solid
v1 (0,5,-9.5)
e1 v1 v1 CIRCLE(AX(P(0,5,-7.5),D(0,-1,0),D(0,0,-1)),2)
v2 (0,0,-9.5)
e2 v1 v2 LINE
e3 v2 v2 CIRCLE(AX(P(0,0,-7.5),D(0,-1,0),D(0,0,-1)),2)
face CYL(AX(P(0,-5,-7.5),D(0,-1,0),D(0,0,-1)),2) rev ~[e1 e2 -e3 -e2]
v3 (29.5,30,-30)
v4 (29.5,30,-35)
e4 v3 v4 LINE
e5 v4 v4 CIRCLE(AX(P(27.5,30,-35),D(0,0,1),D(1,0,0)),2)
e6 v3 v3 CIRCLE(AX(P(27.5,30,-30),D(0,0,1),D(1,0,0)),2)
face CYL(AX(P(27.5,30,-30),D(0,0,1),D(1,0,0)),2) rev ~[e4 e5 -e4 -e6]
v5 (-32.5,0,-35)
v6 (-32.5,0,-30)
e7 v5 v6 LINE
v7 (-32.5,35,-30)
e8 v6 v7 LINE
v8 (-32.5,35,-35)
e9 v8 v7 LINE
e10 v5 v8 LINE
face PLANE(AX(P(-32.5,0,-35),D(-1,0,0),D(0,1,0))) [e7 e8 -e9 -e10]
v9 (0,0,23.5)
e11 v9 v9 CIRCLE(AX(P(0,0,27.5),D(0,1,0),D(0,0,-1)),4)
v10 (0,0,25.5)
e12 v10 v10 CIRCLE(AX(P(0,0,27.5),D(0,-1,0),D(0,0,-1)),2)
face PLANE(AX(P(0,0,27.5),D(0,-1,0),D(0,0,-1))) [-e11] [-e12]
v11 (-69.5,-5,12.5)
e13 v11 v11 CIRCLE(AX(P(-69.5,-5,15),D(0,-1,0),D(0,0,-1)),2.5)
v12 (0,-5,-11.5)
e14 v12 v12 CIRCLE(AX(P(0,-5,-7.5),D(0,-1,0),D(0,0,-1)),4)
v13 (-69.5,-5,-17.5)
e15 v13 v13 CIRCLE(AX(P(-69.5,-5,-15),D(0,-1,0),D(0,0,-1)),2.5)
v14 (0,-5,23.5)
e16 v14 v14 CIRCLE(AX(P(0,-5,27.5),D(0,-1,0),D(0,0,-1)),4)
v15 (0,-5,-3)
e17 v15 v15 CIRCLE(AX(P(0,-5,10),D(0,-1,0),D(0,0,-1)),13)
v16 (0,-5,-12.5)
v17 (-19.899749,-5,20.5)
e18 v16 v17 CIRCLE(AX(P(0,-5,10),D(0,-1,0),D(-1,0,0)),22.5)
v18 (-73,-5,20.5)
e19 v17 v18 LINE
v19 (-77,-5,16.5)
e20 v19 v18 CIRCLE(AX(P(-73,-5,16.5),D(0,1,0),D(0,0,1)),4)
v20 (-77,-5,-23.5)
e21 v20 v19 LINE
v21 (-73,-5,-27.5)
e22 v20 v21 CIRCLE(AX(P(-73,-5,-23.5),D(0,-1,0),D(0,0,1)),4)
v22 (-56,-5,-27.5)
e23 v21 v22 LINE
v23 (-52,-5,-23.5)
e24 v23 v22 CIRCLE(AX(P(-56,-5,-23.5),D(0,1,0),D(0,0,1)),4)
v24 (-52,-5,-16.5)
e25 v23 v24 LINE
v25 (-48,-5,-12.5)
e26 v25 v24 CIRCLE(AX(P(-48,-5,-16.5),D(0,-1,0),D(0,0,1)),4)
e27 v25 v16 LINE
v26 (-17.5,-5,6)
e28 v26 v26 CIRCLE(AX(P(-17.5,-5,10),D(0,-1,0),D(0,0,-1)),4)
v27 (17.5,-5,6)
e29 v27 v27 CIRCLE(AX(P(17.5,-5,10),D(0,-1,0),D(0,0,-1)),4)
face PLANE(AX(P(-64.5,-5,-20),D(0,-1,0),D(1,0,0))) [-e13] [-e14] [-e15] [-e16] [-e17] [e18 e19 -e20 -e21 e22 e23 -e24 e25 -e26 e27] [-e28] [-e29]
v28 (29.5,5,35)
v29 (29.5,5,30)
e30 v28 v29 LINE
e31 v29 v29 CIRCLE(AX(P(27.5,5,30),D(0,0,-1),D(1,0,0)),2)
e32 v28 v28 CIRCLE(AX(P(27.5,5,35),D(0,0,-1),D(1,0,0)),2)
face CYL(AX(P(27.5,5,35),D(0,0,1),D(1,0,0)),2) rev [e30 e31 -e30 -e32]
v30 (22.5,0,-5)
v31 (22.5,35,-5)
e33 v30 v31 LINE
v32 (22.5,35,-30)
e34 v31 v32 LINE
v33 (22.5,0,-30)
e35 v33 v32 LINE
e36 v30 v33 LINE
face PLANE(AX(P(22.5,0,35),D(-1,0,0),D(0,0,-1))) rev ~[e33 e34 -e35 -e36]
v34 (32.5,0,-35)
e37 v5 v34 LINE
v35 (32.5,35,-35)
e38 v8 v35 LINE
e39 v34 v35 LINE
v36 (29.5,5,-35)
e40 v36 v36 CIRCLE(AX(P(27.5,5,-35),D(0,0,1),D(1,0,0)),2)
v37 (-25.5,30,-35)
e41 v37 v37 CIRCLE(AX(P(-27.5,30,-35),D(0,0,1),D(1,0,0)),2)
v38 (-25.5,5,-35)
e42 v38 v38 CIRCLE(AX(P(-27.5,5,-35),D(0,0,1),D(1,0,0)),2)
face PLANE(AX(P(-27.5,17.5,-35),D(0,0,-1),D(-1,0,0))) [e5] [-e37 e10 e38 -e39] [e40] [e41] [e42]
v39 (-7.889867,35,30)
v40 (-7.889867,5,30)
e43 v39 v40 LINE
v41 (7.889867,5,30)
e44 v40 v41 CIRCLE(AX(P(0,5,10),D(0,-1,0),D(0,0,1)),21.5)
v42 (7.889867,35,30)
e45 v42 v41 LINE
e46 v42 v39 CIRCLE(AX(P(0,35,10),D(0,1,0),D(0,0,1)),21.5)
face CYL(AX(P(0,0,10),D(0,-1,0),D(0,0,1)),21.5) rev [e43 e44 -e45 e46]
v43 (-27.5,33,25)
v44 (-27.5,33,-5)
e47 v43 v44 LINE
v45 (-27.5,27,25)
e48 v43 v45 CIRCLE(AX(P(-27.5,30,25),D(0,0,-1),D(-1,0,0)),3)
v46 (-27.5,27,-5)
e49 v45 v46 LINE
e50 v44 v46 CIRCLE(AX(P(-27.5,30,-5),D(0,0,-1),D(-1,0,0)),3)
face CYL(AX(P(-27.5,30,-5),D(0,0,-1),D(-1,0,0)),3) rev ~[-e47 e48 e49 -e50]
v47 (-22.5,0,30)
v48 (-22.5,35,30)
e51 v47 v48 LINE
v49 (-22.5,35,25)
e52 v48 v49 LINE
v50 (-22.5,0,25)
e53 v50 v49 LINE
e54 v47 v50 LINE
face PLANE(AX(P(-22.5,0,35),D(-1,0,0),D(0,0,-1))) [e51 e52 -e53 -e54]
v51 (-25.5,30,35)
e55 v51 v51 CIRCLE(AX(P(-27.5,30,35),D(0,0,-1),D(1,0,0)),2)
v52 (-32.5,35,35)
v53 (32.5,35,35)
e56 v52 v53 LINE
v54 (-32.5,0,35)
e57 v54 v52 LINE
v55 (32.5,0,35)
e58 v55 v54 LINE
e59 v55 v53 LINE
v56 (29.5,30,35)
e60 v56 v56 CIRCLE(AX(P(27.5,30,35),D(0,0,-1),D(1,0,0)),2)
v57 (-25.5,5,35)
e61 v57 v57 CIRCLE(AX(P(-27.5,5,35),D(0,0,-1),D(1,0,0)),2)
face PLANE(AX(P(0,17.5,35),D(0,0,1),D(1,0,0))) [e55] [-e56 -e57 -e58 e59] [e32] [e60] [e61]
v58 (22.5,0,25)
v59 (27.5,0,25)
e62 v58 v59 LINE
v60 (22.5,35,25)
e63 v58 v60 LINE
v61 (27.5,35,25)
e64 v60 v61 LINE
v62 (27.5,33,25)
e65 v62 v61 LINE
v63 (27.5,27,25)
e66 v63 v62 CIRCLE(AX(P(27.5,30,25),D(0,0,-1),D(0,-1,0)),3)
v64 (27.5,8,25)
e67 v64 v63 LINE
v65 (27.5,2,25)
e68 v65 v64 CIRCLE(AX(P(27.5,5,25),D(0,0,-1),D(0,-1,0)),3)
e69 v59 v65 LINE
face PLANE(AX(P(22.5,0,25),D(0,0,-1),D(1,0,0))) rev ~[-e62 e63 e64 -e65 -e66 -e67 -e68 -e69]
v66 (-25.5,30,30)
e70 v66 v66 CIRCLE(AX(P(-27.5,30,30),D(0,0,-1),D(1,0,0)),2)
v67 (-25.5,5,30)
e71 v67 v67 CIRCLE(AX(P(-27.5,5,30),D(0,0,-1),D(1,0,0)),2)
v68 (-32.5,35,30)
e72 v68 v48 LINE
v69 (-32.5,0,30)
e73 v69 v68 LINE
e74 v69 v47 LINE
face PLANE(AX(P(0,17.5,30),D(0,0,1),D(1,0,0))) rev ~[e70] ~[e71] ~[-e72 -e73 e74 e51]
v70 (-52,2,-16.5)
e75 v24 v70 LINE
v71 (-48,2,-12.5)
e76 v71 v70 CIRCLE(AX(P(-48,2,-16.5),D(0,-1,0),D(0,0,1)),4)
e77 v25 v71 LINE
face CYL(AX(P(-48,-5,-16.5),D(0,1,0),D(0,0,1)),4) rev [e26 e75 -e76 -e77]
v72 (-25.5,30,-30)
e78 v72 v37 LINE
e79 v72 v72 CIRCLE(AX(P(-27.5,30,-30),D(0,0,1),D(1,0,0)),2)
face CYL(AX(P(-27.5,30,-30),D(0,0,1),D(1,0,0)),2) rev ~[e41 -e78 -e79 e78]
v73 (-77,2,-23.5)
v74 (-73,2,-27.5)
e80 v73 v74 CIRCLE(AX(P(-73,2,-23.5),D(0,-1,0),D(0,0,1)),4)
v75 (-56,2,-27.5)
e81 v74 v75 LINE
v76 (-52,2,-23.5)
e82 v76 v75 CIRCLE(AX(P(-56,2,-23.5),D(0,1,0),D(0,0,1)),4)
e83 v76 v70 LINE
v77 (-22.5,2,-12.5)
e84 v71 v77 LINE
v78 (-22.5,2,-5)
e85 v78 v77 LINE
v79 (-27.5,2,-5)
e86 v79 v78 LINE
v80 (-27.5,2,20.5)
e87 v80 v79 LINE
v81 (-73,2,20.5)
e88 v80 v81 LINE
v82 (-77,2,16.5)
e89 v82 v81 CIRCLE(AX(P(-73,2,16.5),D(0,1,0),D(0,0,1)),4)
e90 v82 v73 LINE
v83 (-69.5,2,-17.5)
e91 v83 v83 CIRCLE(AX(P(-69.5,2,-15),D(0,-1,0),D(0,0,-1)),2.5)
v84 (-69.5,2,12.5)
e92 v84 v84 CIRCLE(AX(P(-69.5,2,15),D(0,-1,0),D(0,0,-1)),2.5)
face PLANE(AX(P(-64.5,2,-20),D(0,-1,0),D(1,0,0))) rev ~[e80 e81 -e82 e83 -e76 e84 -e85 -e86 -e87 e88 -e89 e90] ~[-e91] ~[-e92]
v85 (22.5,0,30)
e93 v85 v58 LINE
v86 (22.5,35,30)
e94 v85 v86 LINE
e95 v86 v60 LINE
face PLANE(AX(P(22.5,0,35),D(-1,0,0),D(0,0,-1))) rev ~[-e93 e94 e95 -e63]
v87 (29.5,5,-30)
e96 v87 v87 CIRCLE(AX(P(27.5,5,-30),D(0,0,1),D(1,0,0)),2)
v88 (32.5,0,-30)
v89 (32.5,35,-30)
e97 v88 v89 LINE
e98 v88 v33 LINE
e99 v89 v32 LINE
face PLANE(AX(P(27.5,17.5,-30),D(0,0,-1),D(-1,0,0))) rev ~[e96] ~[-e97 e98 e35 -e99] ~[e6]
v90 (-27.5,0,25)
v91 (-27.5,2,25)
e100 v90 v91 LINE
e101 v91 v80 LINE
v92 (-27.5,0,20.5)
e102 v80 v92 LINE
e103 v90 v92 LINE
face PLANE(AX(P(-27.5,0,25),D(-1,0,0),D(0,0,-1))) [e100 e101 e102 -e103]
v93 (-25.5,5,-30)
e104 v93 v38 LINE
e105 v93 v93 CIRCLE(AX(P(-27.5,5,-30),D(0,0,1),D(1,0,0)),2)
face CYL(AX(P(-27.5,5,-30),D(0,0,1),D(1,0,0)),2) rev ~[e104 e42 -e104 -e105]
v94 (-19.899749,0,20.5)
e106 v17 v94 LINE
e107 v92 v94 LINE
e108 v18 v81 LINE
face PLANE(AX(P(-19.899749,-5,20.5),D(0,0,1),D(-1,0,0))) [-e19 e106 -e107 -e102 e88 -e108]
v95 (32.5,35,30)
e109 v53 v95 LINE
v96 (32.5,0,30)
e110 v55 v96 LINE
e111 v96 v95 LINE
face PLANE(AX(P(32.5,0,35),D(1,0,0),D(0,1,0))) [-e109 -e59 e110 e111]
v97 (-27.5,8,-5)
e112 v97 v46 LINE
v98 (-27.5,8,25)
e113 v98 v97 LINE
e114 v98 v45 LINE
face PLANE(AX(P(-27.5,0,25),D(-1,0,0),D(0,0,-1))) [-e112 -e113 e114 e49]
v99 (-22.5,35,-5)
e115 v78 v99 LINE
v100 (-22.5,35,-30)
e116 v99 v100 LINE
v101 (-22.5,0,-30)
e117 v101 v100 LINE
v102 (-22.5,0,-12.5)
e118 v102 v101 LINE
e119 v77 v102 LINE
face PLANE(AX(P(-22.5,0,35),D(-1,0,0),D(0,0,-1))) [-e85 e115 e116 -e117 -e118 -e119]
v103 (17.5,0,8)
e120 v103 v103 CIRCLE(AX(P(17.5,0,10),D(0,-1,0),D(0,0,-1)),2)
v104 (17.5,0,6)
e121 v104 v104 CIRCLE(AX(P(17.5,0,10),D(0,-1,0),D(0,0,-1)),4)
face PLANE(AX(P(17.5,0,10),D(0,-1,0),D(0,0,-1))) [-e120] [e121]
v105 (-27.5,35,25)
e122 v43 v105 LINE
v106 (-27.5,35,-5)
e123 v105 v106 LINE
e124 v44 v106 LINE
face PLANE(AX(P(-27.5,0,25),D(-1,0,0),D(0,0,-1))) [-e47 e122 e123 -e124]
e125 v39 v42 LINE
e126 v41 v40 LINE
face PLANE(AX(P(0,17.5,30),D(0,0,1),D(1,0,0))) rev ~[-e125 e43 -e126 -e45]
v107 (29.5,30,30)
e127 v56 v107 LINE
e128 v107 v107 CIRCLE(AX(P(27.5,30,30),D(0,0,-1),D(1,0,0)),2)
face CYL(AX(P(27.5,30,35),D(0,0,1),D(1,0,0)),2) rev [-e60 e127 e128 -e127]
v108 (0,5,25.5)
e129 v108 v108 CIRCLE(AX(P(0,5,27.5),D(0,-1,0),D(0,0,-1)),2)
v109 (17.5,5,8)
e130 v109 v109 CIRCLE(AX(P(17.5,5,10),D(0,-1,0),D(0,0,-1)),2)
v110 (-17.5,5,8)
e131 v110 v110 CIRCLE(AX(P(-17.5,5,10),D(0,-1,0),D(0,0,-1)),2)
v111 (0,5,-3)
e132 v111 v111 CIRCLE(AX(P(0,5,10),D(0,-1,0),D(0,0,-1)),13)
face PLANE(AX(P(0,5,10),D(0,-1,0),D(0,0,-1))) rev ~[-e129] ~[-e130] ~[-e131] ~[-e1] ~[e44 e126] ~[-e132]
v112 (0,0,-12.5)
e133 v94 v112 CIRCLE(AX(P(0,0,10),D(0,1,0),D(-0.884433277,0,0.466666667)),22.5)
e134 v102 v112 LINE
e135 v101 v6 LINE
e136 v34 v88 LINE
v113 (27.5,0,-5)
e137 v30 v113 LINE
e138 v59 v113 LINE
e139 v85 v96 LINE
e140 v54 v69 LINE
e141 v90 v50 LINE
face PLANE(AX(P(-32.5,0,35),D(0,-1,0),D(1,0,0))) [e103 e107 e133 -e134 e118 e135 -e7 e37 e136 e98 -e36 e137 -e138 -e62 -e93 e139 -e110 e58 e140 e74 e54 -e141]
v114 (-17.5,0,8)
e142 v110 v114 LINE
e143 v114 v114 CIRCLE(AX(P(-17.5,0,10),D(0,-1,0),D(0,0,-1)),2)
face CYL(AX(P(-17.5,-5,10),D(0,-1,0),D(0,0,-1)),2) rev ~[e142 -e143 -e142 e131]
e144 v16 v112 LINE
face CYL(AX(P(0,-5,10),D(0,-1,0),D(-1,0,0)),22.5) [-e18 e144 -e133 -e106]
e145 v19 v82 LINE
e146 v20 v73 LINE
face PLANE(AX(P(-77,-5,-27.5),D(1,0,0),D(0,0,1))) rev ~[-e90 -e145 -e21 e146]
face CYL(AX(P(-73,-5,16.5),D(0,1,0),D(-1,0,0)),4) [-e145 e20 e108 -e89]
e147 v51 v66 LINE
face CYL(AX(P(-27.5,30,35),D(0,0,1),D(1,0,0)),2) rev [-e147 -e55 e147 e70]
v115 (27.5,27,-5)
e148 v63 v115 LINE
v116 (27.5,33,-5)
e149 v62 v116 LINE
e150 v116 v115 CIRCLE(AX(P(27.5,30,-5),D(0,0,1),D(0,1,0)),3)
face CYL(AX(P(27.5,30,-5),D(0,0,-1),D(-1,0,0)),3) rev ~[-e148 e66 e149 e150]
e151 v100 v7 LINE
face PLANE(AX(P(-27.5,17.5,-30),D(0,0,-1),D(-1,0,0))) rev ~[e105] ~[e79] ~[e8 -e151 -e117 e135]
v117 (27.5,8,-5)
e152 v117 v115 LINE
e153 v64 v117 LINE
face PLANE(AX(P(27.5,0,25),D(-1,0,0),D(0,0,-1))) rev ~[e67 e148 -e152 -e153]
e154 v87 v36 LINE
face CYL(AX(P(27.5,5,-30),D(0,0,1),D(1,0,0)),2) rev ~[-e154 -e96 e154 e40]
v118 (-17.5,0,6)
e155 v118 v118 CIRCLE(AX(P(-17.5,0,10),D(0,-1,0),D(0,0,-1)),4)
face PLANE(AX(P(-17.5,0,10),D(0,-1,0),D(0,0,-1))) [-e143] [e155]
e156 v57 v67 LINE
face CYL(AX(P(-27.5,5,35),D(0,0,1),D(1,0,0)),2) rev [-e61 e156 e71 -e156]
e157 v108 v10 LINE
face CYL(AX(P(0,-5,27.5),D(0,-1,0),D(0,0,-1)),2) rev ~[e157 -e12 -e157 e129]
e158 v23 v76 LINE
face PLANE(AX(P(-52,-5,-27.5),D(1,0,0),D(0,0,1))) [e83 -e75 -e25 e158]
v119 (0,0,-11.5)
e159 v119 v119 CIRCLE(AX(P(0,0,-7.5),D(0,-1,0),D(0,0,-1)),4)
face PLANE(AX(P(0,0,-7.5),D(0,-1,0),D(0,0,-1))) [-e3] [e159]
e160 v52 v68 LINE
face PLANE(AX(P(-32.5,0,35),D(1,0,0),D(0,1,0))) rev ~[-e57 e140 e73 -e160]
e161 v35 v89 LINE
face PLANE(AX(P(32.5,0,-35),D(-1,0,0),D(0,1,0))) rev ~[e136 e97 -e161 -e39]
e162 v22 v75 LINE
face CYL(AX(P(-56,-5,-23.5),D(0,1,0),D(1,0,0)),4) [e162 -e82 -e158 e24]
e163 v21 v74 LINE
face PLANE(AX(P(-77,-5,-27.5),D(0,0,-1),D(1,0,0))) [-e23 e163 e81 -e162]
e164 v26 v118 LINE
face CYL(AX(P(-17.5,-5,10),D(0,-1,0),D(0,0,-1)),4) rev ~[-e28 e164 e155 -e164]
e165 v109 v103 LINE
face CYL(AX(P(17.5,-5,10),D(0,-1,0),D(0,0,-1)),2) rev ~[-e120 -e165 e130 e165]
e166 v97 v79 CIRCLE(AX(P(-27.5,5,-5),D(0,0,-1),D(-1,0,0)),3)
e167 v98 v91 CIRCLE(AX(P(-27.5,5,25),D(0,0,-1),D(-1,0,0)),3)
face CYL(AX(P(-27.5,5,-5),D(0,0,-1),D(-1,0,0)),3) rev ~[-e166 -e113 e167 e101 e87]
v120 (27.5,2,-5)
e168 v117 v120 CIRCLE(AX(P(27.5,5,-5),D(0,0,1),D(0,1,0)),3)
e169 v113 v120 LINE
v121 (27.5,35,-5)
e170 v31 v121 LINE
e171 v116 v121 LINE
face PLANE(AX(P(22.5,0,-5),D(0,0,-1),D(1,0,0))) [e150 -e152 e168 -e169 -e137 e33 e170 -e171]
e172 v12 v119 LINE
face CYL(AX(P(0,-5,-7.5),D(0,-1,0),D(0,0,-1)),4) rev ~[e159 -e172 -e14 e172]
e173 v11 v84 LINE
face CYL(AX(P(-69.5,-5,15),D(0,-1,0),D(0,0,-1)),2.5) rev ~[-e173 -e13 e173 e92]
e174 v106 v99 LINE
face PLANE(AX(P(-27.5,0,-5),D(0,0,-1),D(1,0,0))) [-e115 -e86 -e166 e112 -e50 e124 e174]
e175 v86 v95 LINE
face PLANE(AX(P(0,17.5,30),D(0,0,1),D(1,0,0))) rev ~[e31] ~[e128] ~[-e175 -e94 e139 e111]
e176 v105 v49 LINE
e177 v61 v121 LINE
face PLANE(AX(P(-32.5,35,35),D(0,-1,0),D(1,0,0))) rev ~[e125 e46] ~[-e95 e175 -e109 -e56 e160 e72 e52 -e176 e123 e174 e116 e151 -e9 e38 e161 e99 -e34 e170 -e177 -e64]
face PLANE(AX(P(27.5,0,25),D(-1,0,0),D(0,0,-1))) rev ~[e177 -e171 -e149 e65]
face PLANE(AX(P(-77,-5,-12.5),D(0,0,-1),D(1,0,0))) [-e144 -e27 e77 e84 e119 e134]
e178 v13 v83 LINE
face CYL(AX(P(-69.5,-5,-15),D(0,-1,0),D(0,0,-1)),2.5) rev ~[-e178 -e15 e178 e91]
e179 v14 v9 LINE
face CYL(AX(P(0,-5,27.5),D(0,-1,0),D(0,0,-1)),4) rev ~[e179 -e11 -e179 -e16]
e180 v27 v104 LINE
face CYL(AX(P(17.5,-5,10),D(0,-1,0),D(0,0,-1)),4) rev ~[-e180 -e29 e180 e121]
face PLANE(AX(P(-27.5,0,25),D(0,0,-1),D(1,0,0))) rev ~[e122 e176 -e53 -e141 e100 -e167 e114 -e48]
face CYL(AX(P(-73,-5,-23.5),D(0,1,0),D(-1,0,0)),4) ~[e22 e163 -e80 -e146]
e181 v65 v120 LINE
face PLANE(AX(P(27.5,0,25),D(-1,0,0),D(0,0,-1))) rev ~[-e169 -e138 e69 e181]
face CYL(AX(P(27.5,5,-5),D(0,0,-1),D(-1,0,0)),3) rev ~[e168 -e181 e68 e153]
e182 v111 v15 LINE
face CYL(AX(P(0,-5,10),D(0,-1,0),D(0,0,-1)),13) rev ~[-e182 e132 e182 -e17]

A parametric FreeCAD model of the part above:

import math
import FreeCAD as App
import Part
import Sketcher
from FreeCAD import Vector


def edges_at(feature, points):
    """Names of the edges that pass closest to the given points."""
    edges = feature.Shape.Edges
    near = lambda p: min(range(len(edges)), key=lambda i: edges[i].distToShape(Part.Vertex(*p))[0])
    return sorted({f"Edge{near(p) + 1}" for p in points})


def add_polygon(sketch, points):
    """Adds a closed chain of lines whose ends are joined by coincident constraints."""
    first, n = sketch.GeometryCount, len(points)
    for a, b in zip(points, points[1:] + points[:1]):
        sketch.addGeometry(Part.LineSegment(App.Vector(*a, 0), App.Vector(*b, 0)), False)
    for i in range(n):
        sketch.addConstraint(Sketcher.Constraint("Coincident", first + i, 2, first + (i + 1) % n, 1))

doc = App.newDocument("Part")
params = doc.addObject("Spreadsheet::Sheet", "Params")
for row, (alias, value) in enumerate([
    ("sketch1_diameter", "43 mm"),
    ("sketch1_width", "45 mm"),
    ("sketch1_height", "70 mm"),
    ("pad1_length", "35 mm"),
    ("sketch2_diameter", "43 mm"),
    ("pad2_length", "5 mm"),
    ("sketch3_diameter", "4 mm"),
    ("sketch3_diameter2", "26 mm"),
    ("pocket1_length", "10 mm"),
    ("sketch4_width", "10 mm"),
    ("sketch4_height", "35 mm"),
    ("pad3_length", "5 mm"),
    ("sketch5_diameter", "4 mm"),
    ("pocket2_length", "5 mm"),
    ("sketch6_diameter", "45 mm"),
    ("sketch6_diameter2", "4 mm"),
    ("sketch6_diameter3", "26 mm"),
    ("pad4_length", "5 mm"),
    ("sketch7_diameter", "8 mm"),
    ("pocket3_length", "5 mm"),
    ("sketch8_radius", "22.5 mm"),
    ("sketch8_width", "77 mm"),
    ("sketch8_height", "33 mm"),
    ("pad5_length", "7 mm"),
    ("sketch9_width", "25 mm"),
    ("sketch9_height", "15 mm"),
    ("pad6_length", "7 mm"),
    ("fillet_radius", "4 mm"),
    ("sketch10_diameter", "5 mm"),
    ("pocket4_length", "10 mm"),
    ("sketch11_width", "5 mm"),
    ("sketch11_height", "30 mm"),
    ("pad7_length", "35 mm"),
    ("sketch12_width", "65 mm"),
    ("sketch12_height", "35 mm"),
    ("pad8_length", "5 mm"),
    ("sketch13_diameter", "4 mm"),
    ("pocket5_length", "5 mm"),
    ("sketch14_diameter", "6 mm"),
    ("pocket6_length", "31 mm"),
], start=1):
    params.set(f"A{row}", alias)
    params.set(f"B{row}", "=" + value)
    params.setAlias(f"B{row}", alias)

body = doc.addObject("PartDesign::Body", "Body")

# Sketch on XZ plane
sketch1 = body.newObject("Sketcher::SketchObject", "Sketch")
sketch1.AttachmentSupport = (doc.getObject("XZ_Plane"), [""])
sketch1.MapMode = "FlatFace"
add_polygon(sketch1, [(-22, -35), (-22, 35), (22, 35), (22, -35)])  # lines 0-3
sketch1.addGeometry(Part.Circle(Vector(0, 10, 0), Vector(0, 0, 1), 22), False)  # 4
sketch1.addConstraint(Sketcher.Constraint("Vertical", 0))
sketch1.addConstraint(Sketcher.Constraint("Horizontal", 1))
sketch1.addConstraint(Sketcher.Constraint("Vertical", 2))
sketch1.addConstraint(Sketcher.Constraint("Horizontal", 3))
sketch1.addConstraint(Sketcher.Constraint("Symmetric", 0, 2, 2, 2, -1, 1))
sketch1.addConstraint(Sketcher.Constraint("PointOnObject", 4, 3, -2))
sketch1.addConstraint(Sketcher.Constraint("Diameter", 4, 43.0))
sketch1.addConstraint(Sketcher.Constraint("DistanceX", 1, 1, 1, 2, 45.0))
sketch1.addConstraint(Sketcher.Constraint("DistanceY", 0, 1, 0, 2, 70.0))
sketch1.addConstraint(Sketcher.Constraint("DistanceY", -1, 1, 4, 3, 10.0))
sketch1.setExpression("Constraints[10]", "Params.sketch1_diameter")
sketch1.setExpression("Constraints[11]", "Params.sketch1_width")
sketch1.setExpression("Constraints[12]", "Params.sketch1_height")
pad1 = body.newObject("PartDesign::Pad", "Pad")
pad1.Profile = sketch1
pad1.setExpression("Length", "Params.pad1_length")
pad1.Reversed = True

# Sketch on XZ plane
sketch2 = body.newObject("Sketcher::SketchObject", "Sketch001")
sketch2.AttachmentSupport = (doc.getObject("XZ_Plane"), [""])
sketch2.MapMode = "FlatFace"
sketch2.addGeometry(Part.Circle(Vector(0, 10, 0), Vector(0, 0, 1), 22), False)
sketch2.addConstraint(Sketcher.Constraint("PointOnObject", 0, 3, -2))
sketch2.addConstraint(Sketcher.Constraint("Diameter", 0, 43.0))
sketch2.addConstraint(Sketcher.Constraint("DistanceY", -1, 1, 0, 3, 10.0))
sketch2.setExpression("Constraints[1]", "Params.sketch2_diameter")
pad2 = body.newObject("PartDesign::Pad", "Pad001")
pad2.Profile = sketch2
pad2.setExpression("Length", "Params.pad2_length")
pad2.Reversed = True

# Sketch on XZ plane
sketch3 = body.newObject("Sketcher::SketchObject", "Sketch002")
sketch3.AttachmentSupport = (doc.getObject("XZ_Plane"), [""])
sketch3.MapMode = "FlatFace"
sketch3.addGeometry(Part.Circle(Vector(0, -7.5, 0), Vector(0, 0, 1), 2), False)
sketch3.addGeometry(Part.Circle(Vector(-17.5, 10, 0), Vector(0, 0, 1), 2), False)
sketch3.addGeometry(Part.Circle(Vector(0, 27.5, 0), Vector(0, 0, 1), 2), False)
sketch3.addGeometry(Part.Circle(Vector(17.5, 10, 0), Vector(0, 0, 1), 2), False)
sketch3.addGeometry(Part.Circle(Vector(0, 10, 0), Vector(0, 0, 1), 13), False)
sketch3.addConstraint(Sketcher.Constraint("Equal", 0, 1))
sketch3.addConstraint(Sketcher.Constraint("Equal", 1, 2))
sketch3.addConstraint(Sketcher.Constraint("Equal", 2, 3))
sketch3.addConstraint(Sketcher.Constraint("Symmetric", 1, 3, 3, 3, -2))
sketch3.addConstraint(Sketcher.Constraint("PointOnObject", 0, 3, -2))
sketch3.addConstraint(Sketcher.Constraint("PointOnObject", 2, 3, -2))
sketch3.addConstraint(Sketcher.Constraint("PointOnObject", 4, 3, -2))
sketch3.addConstraint(Sketcher.Constraint("Horizontal", 3, 3, 4, 3))
sketch3.addConstraint(Sketcher.Constraint("Diameter", 0, 4.0))
sketch3.addConstraint(Sketcher.Constraint("Diameter", 4, 26.0))
sketch3.addConstraint(Sketcher.Constraint("DistanceY", -1, 1, 1, 3, 10.0))
sketch3.addConstraint(Sketcher.Constraint("DistanceY", 0, 3, 2, 3, 35.0))
sketch3.addConstraint(Sketcher.Constraint("DistanceX", 1, 3, 3, 3, 35.0))
sketch3.addConstraint(Sketcher.Constraint("DistanceY", 0, 3, -1, 1, 7.5))
sketch3.setExpression("Constraints[8]", "Params.sketch3_diameter")
sketch3.setExpression("Constraints[9]", "Params.sketch3_diameter2")
pocket1 = body.newObject("PartDesign::Pocket", "Pocket")
pocket1.Profile = sketch3
pocket1.setExpression("Length", "Params.pocket1_length")

# Sketch on XY plane
sketch4 = body.newObject("Sketcher::SketchObject", "Sketch003")
sketch4.AttachmentSupport = (doc.getObject("XY_Plane"), [""])
sketch4.MapMode = "FlatFace"
sketch4.AttachmentOffset = App.Placement(Vector(0, 0, -35), App.Rotation())
add_polygon(sketch4, [(-22, 35), (-22, 0), (-32, 0), (-32, 35)])  # lines 0-3
add_polygon(sketch4, [(32, 35), (32, 0), (22, 0), (22, 35)])  # lines 4-7
sketch4.addConstraint(Sketcher.Constraint("Vertical", 0))
sketch4.addConstraint(Sketcher.Constraint("Horizontal", 1))
sketch4.addConstraint(Sketcher.Constraint("Vertical", 2))
sketch4.addConstraint(Sketcher.Constraint("Horizontal", 3))
sketch4.addConstraint(Sketcher.Constraint("Vertical", 4))
sketch4.addConstraint(Sketcher.Constraint("Horizontal", 5))
sketch4.addConstraint(Sketcher.Constraint("Vertical", 6))
sketch4.addConstraint(Sketcher.Constraint("Horizontal", 7))
sketch4.addConstraint(Sketcher.Constraint("Symmetric", 1, 2, 4, 2, -1, 1))
sketch4.addConstraint(Sketcher.Constraint("Symmetric", 0, 2, 5, 2, -2))
sketch4.addConstraint(Sketcher.Constraint("Horizontal", 3, 2, 6, 2))
sketch4.addConstraint(Sketcher.Constraint("DistanceX", 1, 2, 1, 1, 10.0))
sketch4.addConstraint(Sketcher.Constraint("DistanceY", 0, 2, 0, 1, 35.0))
sketch4.addConstraint(Sketcher.Constraint("DistanceX", 0, 2, 4, 2, 55.0))
sketch4.setExpression("Constraints[19]", "Params.sketch4_width")
sketch4.setExpression("Constraints[20]", "Params.sketch4_height")
pad3 = body.newObject("PartDesign::Pad", "Pad002")
pad3.Profile = sketch4
pad3.setExpression("Length", "Params.pad3_length")

# Sketch on XY plane
sketch5 = body.newObject("Sketcher::SketchObject", "Sketch004")
sketch5.AttachmentSupport = (doc.getObject("XY_Plane"), [""])
sketch5.MapMode = "FlatFace"
sketch5.AttachmentOffset = App.Placement(Vector(0, 0, -30), App.Rotation())
sketch5.addGeometry(Part.Circle(Vector(27.5, 30, 0), Vector(0, 0, 1), 2), False)
sketch5.addGeometry(Part.Circle(Vector(27.5, 5, 0), Vector(0, 0, 1), 2), False)
sketch5.addGeometry(Part.Circle(Vector(-27.5, 30, 0), Vector(0, 0, 1), 2), False)
sketch5.addGeometry(Part.Circle(Vector(-27.5, 5, 0), Vector(0, 0, 1), 2), False)
sketch5.addConstraint(Sketcher.Constraint("Equal", 0, 1))
sketch5.addConstraint(Sketcher.Constraint("Equal", 1, 2))
sketch5.addConstraint(Sketcher.Constraint("Equal", 2, 3))
sketch5.addConstraint(Sketcher.Constraint("Symmetric", 0, 3, 2, 3, -2))
sketch5.addConstraint(Sketcher.Constraint("Symmetric", 1, 3, 3, 3, -2))
sketch5.addConstraint(Sketcher.Constraint("Vertical", 0, 3, 1, 3))
sketch5.addConstraint(Sketcher.Constraint("Diameter", 0, 4.0))
sketch5.addConstraint(Sketcher.Constraint("DistanceY", -1, 1, 0, 3, 30.0))
sketch5.addConstraint(Sketcher.Constraint("DistanceY", -1, 1, 1, 3, 5.0))
sketch5.addConstraint(Sketcher.Constraint("DistanceX", 2, 3, 0, 3, 55.0))
sketch5.setExpression("Constraints[6]", "Params.sketch5_diameter")
pocket2 = body.newObject("PartDesign::Pocket", "Pocket001")
pocket2.Profile = sketch5
pocket2.setExpression("Length", "Params.pocket2_length")

# Sketch on XZ plane
sketch6 = body.newObject("Sketcher::SketchObject", "Sketch005")
sketch6.AttachmentSupport = (doc.getObject("XZ_Plane"), [""])
sketch6.MapMode = "FlatFace"
sketch6.AttachmentOffset = App.Placement(Vector(0, 0, 5), App.Rotation())
sketch6.addGeometry(Part.Circle(Vector(0, 10, 0), Vector(0, 0, 1), 22.5), False)
sketch6.addGeometry(Part.Circle(Vector(0, 27.5, 0), Vector(0, 0, 1), 2), False)
sketch6.addGeometry(Part.Circle(Vector(17.5, 10, 0), Vector(0, 0, 1), 2), False)
sketch6.addGeometry(Part.Circle(Vector(0, 10, 0), Vector(0, 0, 1), 13), False)
sketch6.addGeometry(Part.Circle(Vector(-17.5, 10, 0), Vector(0, 0, 1), 2), False)
sketch6.addGeometry(Part.Circle(Vector(0, -7.5, 0), Vector(0, 0, 1), 2), False)
sketch6.addConstraint(Sketcher.Constraint("Coincident", 3, 3, 0, 3))
sketch6.addConstraint(Sketcher.Constraint("Equal", 1, 2))
sketch6.addConstraint(Sketcher.Constraint("Equal", 2, 4))
sketch6.addConstraint(Sketcher.Constraint("Equal", 4, 5))
sketch6.addConstraint(Sketcher.Constraint("Symmetric", 2, 3, 4, 3, -2))
sketch6.addConstraint(Sketcher.Constraint("PointOnObject", 0, 3, -2))
sketch6.addConstraint(Sketcher.Constraint("PointOnObject", 1, 3, -2))
sketch6.addConstraint(Sketcher.Constraint("PointOnObject", 5, 3, -2))
sketch6.addConstraint(Sketcher.Constraint("Horizontal", 0, 3, 2, 3))
sketch6.addConstraint(Sketcher.Constraint("Diameter", 0, 45.0))
sketch6.addConstraint(Sketcher.Constraint("Diameter", 1, 4.0))
sketch6.addConstraint(Sketcher.Constraint("Diameter", 3, 26.0))
sketch6.addConstraint(Sketcher.Constraint("DistanceY", -1, 1, 0, 3, 10.0))
sketch6.addConstraint(Sketcher.Constraint("DistanceX", 4, 3, 2, 3, 35.0))
sketch6.addConstraint(Sketcher.Constraint("DistanceY", 5, 3, 1, 3, 35.0))
sketch6.addConstraint(Sketcher.Constraint("DistanceY", -1, 1, 1, 3, 27.5))
sketch6.setExpression("Constraints[9]", "Params.sketch6_diameter")
sketch6.setExpression("Constraints[10]", "Params.sketch6_diameter2")
sketch6.setExpression("Constraints[11]", "Params.sketch6_diameter3")
pad4 = body.newObject("PartDesign::Pad", "Pad003")
pad4.Profile = sketch6
pad4.setExpression("Length", "Params.pad4_length")
pad4.Reversed = True

# Sketch on XZ plane
sketch7 = body.newObject("Sketcher::SketchObject", "Sketch006")
sketch7.AttachmentSupport = (doc.getObject("XZ_Plane"), [""])
sketch7.MapMode = "FlatFace"
sketch7.AttachmentOffset = App.Placement(Vector(0, 0, 5), App.Rotation())
sketch7.addGeometry(Part.Circle(Vector(0, 27.5, 0), Vector(0, 0, 1), 4), False)
sketch7.addGeometry(Part.Circle(Vector(-17.5, 10, 0), Vector(0, 0, 1), 4), False)
sketch7.addGeometry(Part.Circle(Vector(17.5, 10, 0), Vector(0, 0, 1), 4), False)
sketch7.addGeometry(Part.Circle(Vector(0, -7.5, 0), Vector(0, 0, 1), 4), False)
sketch7.addConstraint(Sketcher.Constraint("Equal", 0, 1))
sketch7.addConstraint(Sketcher.Constraint("Equal", 1, 2))
sketch7.addConstraint(Sketcher.Constraint("Equal", 2, 3))
sketch7.addConstraint(Sketcher.Constraint("Symmetric", 1, 3, 2, 3, -2))
sketch7.addConstraint(Sketcher.Constraint("PointOnObject", 0, 3, -2))
sketch7.addConstraint(Sketcher.Constraint("PointOnObject", 3, 3, -2))
sketch7.addConstraint(Sketcher.Constraint("Diameter", 0, 8.0))
sketch7.addConstraint(Sketcher.Constraint("DistanceY", -1, 1, 1, 3, 10.0))
sketch7.addConstraint(Sketcher.Constraint("DistanceX", 1, 3, 2, 3, 35.0))
sketch7.addConstraint(Sketcher.Constraint("DistanceY", 3, 3, 0, 3, 35.0))
sketch7.addConstraint(Sketcher.Constraint("DistanceY", -1, 1, 0, 3, 27.5))
sketch7.setExpression("Constraints[6]", "Params.sketch7_diameter")
pocket3 = body.newObject("PartDesign::Pocket", "Pocket002")
pocket3.Profile = sketch7
pocket3.setExpression("Length", "Params.pocket3_length")

# Sketch on XZ plane
sketch8 = body.newObject("Sketcher::SketchObject", "Sketch007")
sketch8.AttachmentSupport = (doc.getObject("XZ_Plane"), [""])
sketch8.MapMode = "FlatFace"
sketch8.AttachmentOffset = App.Placement(Vector(0, 0, 5), App.Rotation())
sketch8.addGeometry(Part.LineSegment(Vector(-20, 20, 0), Vector(-77, 20, 0)), False)
sketch8.addGeometry(Part.LineSegment(Vector(-77, 20, 0), Vector(-77, -12, 0)), False)
sketch8.addGeometry(Part.LineSegment(Vector(-77, -12, 0), Vector(0, -12, 0)), False)
sketch8.addGeometry(Part.ArcOfCircle(Part.Circle(Vector(0, 10, 0), Vector(0, 0, 1), 22), math.radians(152), math.radians(270)), False)
sketch8.addConstraint(Sketcher.Constraint("Coincident", 0, 2, 1, 1))
sketch8.addConstraint(Sketcher.Constraint("Coincident", 1, 2, 2, 1))
sketch8.addConstraint(Sketcher.Constraint("Tangent", 2, 2, 3, 2))
sketch8.addConstraint(Sketcher.Constraint("Coincident", 3, 1, 0, 1))
sketch8.addConstraint(Sketcher.Constraint("Horizontal", 0))
sketch8.addConstraint(Sketcher.Constraint("Vertical", 1))
sketch8.addConstraint(Sketcher.Constraint("Horizontal", 2))
sketch8.addConstraint(Sketcher.Constraint("PointOnObject", 3, 3, -2))
sketch8.addConstraint(Sketcher.Constraint("Radius", 3, 22.5))
sketch8.addConstraint(Sketcher.Constraint("DistanceX", 2, 1, 2, 2, 77.0))
sketch8.addConstraint(Sketcher.Constraint("DistanceY", 1, 2, 1, 1, 33.0))
sketch8.addConstraint(Sketcher.Constraint("DistanceY", -1, 1, 3, 3, 10.0))
sketch8.setExpression("Constraints[8]", "Params.sketch8_radius")
sketch8.setExpression("Constraints[9]", "Params.sketch8_width")
sketch8.setExpression("Constraints[10]", "Params.sketch8_height")
pad5 = body.newObject("PartDesign::Pad", "Pad004")
pad5.Profile = sketch8
pad5.setExpression("Length", "Params.pad5_length")
pad5.Reversed = True

# Sketch on XZ plane
sketch9 = body.newObject("Sketcher::SketchObject", "Sketch008")
sketch9.AttachmentSupport = (doc.getObject("XZ_Plane"), [""])
sketch9.MapMode = "FlatFace"
sketch9.AttachmentOffset = App.Placement(Vector(0, 0, 5), App.Rotation())
add_polygon(sketch9, [(-77, -12), (-77, -28), (-52, -28), (-52, -12)])  # lines 0-3
sketch9.addConstraint(Sketcher.Constraint("Vertical", 0))
sketch9.addConstraint(Sketcher.Constraint("Horizontal", 1))
sketch9.addConstraint(Sketcher.Constraint("Vertical", 2))
sketch9.addConstraint(Sketcher.Constraint("Horizontal", 3))
sketch9.addConstraint(Sketcher.Constraint("DistanceX", 1, 1, 1, 2, 25.0))
sketch9.addConstraint(Sketcher.Constraint("DistanceY", 0, 2, 0, 1, 15.0))
sketch9.addConstraint(Sketcher.Constraint("DistanceX", 0, 2, -1, 1, 77.0))
sketch9.addConstraint(Sketcher.Constraint("DistanceY", 0, 2, -1, 1, 27.5))
sketch9.setExpression("Constraints[8]", "Params.sketch9_width")
sketch9.setExpression("Constraints[9]", "Params.sketch9_height")
pad6 = body.newObject("PartDesign::Pad", "Pad005")
pad6.Profile = sketch9
pad6.setExpression("Length", "Params.pad6_length")
pad6.Reversed = True
doc.recompute()

fillet = body.newObject("PartDesign::Fillet", "Fillet")
fillet.Base = (pad6, edges_at(pad6, [
    (-77, -1.5, 20.5),
    (-77, -1.5, -27.5),
    (-52, -1.5, -12.5),
    (-52, -1.5, -27.5),
]))
fillet.setExpression("Radius", "Params.fillet_radius")

# Sketch on XZ plane
sketch10 = body.newObject("Sketcher::SketchObject", "Sketch009")
sketch10.AttachmentSupport = (doc.getObject("XZ_Plane"), [""])
sketch10.MapMode = "FlatFace"
sketch10.AttachmentOffset = App.Placement(Vector(0, 0, 5), App.Rotation())
sketch10.addGeometry(Part.Circle(Vector(-69.5, -15, 0), Vector(0, 0, 1), 2.5), False)
sketch10.addGeometry(Part.Circle(Vector(-69.5, 15, 0), Vector(0, 0, 1), 2.5), False)
sketch10.addConstraint(Sketcher.Constraint("Equal", 0, 1))
sketch10.addConstraint(Sketcher.Constraint("Symmetric", 0, 3, 1, 3, -1))
sketch10.addConstraint(Sketcher.Constraint("Diameter", 0, 5.0))
sketch10.addConstraint(Sketcher.Constraint("DistanceY", 0, 3, -1, 1, 15.0))
sketch10.addConstraint(Sketcher.Constraint("DistanceX", 0, 3, -1, 1, 69.5))
sketch10.setExpression("Constraints[2]", "Params.sketch10_diameter")
pocket4 = body.newObject("PartDesign::Pocket", "Pocket003")
pocket4.Profile = sketch10
pocket4.setExpression("Length", "Params.pocket4_length")

# Sketch on XZ plane
sketch11 = body.newObject("Sketcher::SketchObject", "Sketch010")
sketch11.AttachmentSupport = (doc.getObject("XZ_Plane"), [""])
sketch11.MapMode = "FlatFace"
add_polygon(sketch11, [(22, -5), (22, 25), (28, 25), (28, -5)])  # lines 0-3
add_polygon(sketch11, [(-28, -5), (-28, 25), (-22, 25), (-22, -5)])  # lines 4-7
sketch11.addConstraint(Sketcher.Constraint("Vertical", 0))
sketch11.addConstraint(Sketcher.Constraint("Horizontal", 1))
sketch11.addConstraint(Sketcher.Constraint("Vertical", 2))
sketch11.addConstraint(Sketcher.Constraint("Horizontal", 3))
sketch11.addConstraint(Sketcher.Constraint("Vertical", 4))
sketch11.addConstraint(Sketcher.Constraint("Horizontal", 5))
sketch11.addConstraint(Sketcher.Constraint("Vertical", 6))
sketch11.addConstraint(Sketcher.Constraint("Horizontal", 7))
sketch11.addConstraint(Sketcher.Constraint("Symmetric", 1, 2, 4, 2, -2))
sketch11.addConstraint(Sketcher.Constraint("Symmetric", 3, 2, 6, 2, -2))
sketch11.addConstraint(Sketcher.Constraint("DistanceX", 1, 1, 1, 2, 5.0))
sketch11.addConstraint(Sketcher.Constraint("DistanceY", 0, 1, 0, 2, 30.0))
sketch11.addConstraint(Sketcher.Constraint("DistanceY", -1, 1, 0, 2, 25.0))
sketch11.addConstraint(Sketcher.Constraint("DistanceX", 4, 2, 0, 2, 50.0))
sketch11.setExpression("Constraints[18]", "Params.sketch11_width")
sketch11.setExpression("Constraints[19]", "Params.sketch11_height")
pad7 = body.newObject("PartDesign::Pad", "Pad006")
pad7.Profile = sketch11
pad7.setExpression("Length", "Params.pad7_length")
pad7.Reversed = True

# Sketch on XY plane
sketch12 = body.newObject("Sketcher::SketchObject", "Sketch011")
sketch12.AttachmentSupport = (doc.getObject("XY_Plane"), [""])
sketch12.MapMode = "FlatFace"
sketch12.AttachmentOffset = App.Placement(Vector(0, 0, 35), App.Rotation())
add_polygon(sketch12, [(-32, 35), (-32, 0), (32, 0), (32, 35)])  # lines 0-3
sketch12.addConstraint(Sketcher.Constraint("Vertical", 0))
sketch12.addConstraint(Sketcher.Constraint("Horizontal", 1))
sketch12.addConstraint(Sketcher.Constraint("Vertical", 2))
sketch12.addConstraint(Sketcher.Constraint("Horizontal", 3))
sketch12.addConstraint(Sketcher.Constraint("Symmetric", 0, 2, 1, 2, -1, 1))
sketch12.addConstraint(Sketcher.Constraint("DistanceX", 1, 1, 1, 2, 65.0))
sketch12.addConstraint(Sketcher.Constraint("DistanceY", 0, 2, 0, 1, 35.0))
sketch12.setExpression("Constraints[9]", "Params.sketch12_width")
sketch12.setExpression("Constraints[10]", "Params.sketch12_height")
pad8 = body.newObject("PartDesign::Pad", "Pad007")
pad8.Profile = sketch12
pad8.setExpression("Length", "Params.pad8_length")
pad8.Reversed = True

# Sketch on XY plane
sketch13 = body.newObject("Sketcher::SketchObject", "Sketch012")
sketch13.AttachmentSupport = (doc.getObject("XY_Plane"), [""])
sketch13.MapMode = "FlatFace"
sketch13.AttachmentOffset = App.Placement(Vector(0, 0, 35), App.Rotation())
sketch13.addGeometry(Part.Circle(Vector(27.5, 30, 0), Vector(0, 0, 1), 2), False)
sketch13.addGeometry(Part.Circle(Vector(27.5, 5, 0), Vector(0, 0, 1), 2), False)
sketch13.addGeometry(Part.Circle(Vector(-27.5, 30, 0), Vector(0, 0, 1), 2), False)
sketch13.addGeometry(Part.Circle(Vector(-27.5, 5, 0), Vector(0, 0, 1), 2), False)
sketch13.addConstraint(Sketcher.Constraint("Equal", 0, 1))
sketch13.addConstraint(Sketcher.Constraint("Equal", 1, 2))
sketch13.addConstraint(Sketcher.Constraint("Equal", 2, 3))
sketch13.addConstraint(Sketcher.Constraint("Symmetric", 0, 3, 2, 3, -2))
sketch13.addConstraint(Sketcher.Constraint("Symmetric", 1, 3, 3, 3, -2))
sketch13.addConstraint(Sketcher.Constraint("Vertical", 0, 3, 1, 3))
sketch13.addConstraint(Sketcher.Constraint("Diameter", 0, 4.0))
sketch13.addConstraint(Sketcher.Constraint("DistanceY", -1, 1, 0, 3, 30.0))
sketch13.addConstraint(Sketcher.Constraint("DistanceY", -1, 1, 1, 3, 5.0))
sketch13.addConstraint(Sketcher.Constraint("DistanceX", 2, 3, 0, 3, 55.0))
sketch13.setExpression("Constraints[6]", "Params.sketch13_diameter")
pocket5 = body.newObject("PartDesign::Pocket", "Pocket004")
pocket5.Profile = sketch13
pocket5.setExpression("Length", "Params.pocket5_length")

# Sketch on XY plane
sketch14 = body.newObject("Sketcher::SketchObject", "Sketch013")
sketch14.AttachmentSupport = (doc.getObject("XY_Plane"), [""])
sketch14.MapMode = "FlatFace"
sketch14.AttachmentOffset = App.Placement(Vector(0, 0, -5), App.Rotation())
sketch14.addGeometry(Part.Circle(Vector(-27.5, 30, 0), Vector(0, 0, 1), 3), False)
sketch14.addGeometry(Part.Circle(Vector(-27.5, 5, 0), Vector(0, 0, 1), 3), False)
sketch14.addGeometry(Part.Circle(Vector(27.5, 5, 0), Vector(0, 0, 1), 3), False)
sketch14.addGeometry(Part.Circle(Vector(27.5, 30, 0), Vector(0, 0, 1), 3), False)
sketch14.addConstraint(Sketcher.Constraint("Equal", 0, 1))
sketch14.addConstraint(Sketcher.Constraint("Equal", 1, 2))
sketch14.addConstraint(Sketcher.Constraint("Equal", 2, 3))
sketch14.addConstraint(Sketcher.Constraint("Symmetric", 1, 3, 2, 3, -2))
sketch14.addConstraint(Sketcher.Constraint("Symmetric", 0, 3, 3, 3, -2))
sketch14.addConstraint(Sketcher.Constraint("Vertical", 0, 3, 1, 3))
sketch14.addConstraint(Sketcher.Constraint("Diameter", 0, 6.0))
sketch14.addConstraint(Sketcher.Constraint("DistanceY", -1, 1, 0, 3, 30.0))
sketch14.addConstraint(Sketcher.Constraint("DistanceY", -1, 1, 1, 3, 5.0))
sketch14.addConstraint(Sketcher.Constraint("DistanceX", 1, 3, 2, 3, 55.0))
sketch14.setExpression("Constraints[6]", "Params.sketch14_diameter")
pocket6 = body.newObject("PartDesign::Pocket", "Pocket005")
pocket6.Profile = sketch14
pocket6.setExpression("Length", "Params.pocket6_length")
pocket6.Reversed = True

doc.recompute()
